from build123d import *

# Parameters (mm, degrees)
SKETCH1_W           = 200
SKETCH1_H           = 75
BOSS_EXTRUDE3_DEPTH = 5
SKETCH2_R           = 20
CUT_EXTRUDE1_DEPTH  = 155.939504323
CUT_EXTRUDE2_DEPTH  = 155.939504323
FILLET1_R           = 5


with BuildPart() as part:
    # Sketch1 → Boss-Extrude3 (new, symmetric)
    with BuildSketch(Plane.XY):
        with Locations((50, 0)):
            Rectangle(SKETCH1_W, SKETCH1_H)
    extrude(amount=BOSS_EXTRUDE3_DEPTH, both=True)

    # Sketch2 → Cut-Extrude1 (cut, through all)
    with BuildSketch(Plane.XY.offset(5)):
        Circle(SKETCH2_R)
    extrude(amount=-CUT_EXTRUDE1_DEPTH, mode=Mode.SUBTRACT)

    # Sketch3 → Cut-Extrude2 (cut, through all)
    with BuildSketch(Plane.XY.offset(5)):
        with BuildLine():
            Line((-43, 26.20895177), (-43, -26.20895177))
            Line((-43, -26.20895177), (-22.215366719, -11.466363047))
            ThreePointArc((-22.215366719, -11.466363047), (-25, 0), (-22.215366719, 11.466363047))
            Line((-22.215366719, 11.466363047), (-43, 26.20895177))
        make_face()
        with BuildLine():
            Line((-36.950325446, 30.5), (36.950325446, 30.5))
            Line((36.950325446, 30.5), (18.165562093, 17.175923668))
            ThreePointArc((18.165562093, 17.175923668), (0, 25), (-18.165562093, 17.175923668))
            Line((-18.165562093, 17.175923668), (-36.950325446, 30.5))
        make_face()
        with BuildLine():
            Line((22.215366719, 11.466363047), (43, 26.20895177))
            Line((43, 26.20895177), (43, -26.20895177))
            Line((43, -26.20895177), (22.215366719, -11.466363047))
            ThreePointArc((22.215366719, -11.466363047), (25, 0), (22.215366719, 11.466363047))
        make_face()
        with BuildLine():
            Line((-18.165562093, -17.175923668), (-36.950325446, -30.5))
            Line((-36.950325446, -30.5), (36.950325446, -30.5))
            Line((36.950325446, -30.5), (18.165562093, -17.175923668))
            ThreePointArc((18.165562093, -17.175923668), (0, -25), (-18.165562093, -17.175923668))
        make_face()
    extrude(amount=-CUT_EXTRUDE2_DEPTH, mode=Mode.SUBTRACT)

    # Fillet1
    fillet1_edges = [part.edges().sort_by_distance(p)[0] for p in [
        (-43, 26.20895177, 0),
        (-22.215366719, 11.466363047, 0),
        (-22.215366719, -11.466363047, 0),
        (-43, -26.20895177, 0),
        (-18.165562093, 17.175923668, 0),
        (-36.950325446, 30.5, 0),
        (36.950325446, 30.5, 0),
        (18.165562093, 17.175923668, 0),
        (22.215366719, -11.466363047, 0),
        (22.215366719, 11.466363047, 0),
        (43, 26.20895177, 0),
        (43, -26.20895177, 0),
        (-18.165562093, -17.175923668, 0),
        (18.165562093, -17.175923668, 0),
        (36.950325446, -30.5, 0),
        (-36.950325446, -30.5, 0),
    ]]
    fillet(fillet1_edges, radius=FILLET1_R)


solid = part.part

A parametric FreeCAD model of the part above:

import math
import FreeCAD as App
import Part
import Sketcher
from FreeCAD import Vector


def edges_at(feature, points):
    """Names of the edges that pass closest to the given points."""
    edges = feature.Shape.Edges
    near = lambda p: min(range(len(edges)), key=lambda i: edges[i].distToShape(Part.Vertex(*p))[0])
    return sorted({f"Edge{near(p) + 1}" for p in points})


def add_polygon(sketch, points):
    """Adds a closed chain of lines whose ends are joined by coincident constraints."""
    first, n = sketch.GeometryCount, len(points)
    for a, b in zip(points, points[1:] + points[:1]):
        sketch.addGeometry(Part.LineSegment(App.Vector(*a, 0), App.Vector(*b, 0)), False)
    for i in range(n):
        sketch.addConstraint(Sketcher.Constraint("Coincident", first + i, 2, first + (i + 1) % n, 1))

doc = App.newDocument("Part")
params = doc.addObject("Spreadsheet::Sheet", "Params")
for row, (alias, value) in enumerate([
    ("sketch1_width", "200 mm"),
    ("sketch1_height", "75 mm"),
    ("pad1_length", "10 mm"),
    ("sketch2_diameter", "40 mm"),
    ("sketch3_radius", "25 mm"),
    ("fillet_radius", "5 mm"),
], start=1):
    params.set(f"A{row}", alias)
    params.set(f"B{row}", "=" + value)
    params.setAlias(f"B{row}", alias)

body = doc.addObject("PartDesign::Body", "Body")

# Sketch on XY plane
sketch1 = doc.addObject("Sketcher::SketchObject", "Sketch")
body.addObject(sketch1)
sketch1.AttachmentSupport = (doc.XY_Plane, [""])
sketch1.MapMode = "FlatFace"
add_polygon(sketch1, [(-50, 38), (-50, -38), (150, -38), (150, 38)])  # lines 0-3
sketch1.addConstraint([
    Sketcher.Constraint("Vertical", 0),
    Sketcher.Constraint("Horizontal", 1),
    Sketcher.Constraint("Vertical", 2),
    Sketcher.Constraint("Horizontal", 3),
    Sketcher.Constraint("DistanceX", 1, 1, 1, 2, 200.0),
    Sketcher.Constraint("DistanceY", 0, 2, 0, 1, 75.0),
    Sketcher.Constraint("DistanceX", 0, 2, -1, 1, 50.0),
    Sketcher.Constraint("DistanceY", 0, 2, -1, 1, 37.5),
])
sketch1.setExpression("Constraints[8]", "Params.sketch1_width")
sketch1.setExpression("Constraints[9]", "Params.sketch1_height")
pad1 = doc.addObject("PartDesign::Pad", "Pad")
body.addObject(pad1)
pad1.Profile = sketch1
pad1.setExpression("Length", "Params.pad1_length")
pad1.Midplane = True

# Sketch on XY plane
sketch2 = doc.addObject("Sketcher::SketchObject", "Sketch001")
body.addObject(sketch2)
sketch2.AttachmentSupport = (doc.XY_Plane, [""])
sketch2.MapMode = "FlatFace"
sketch2.AttachmentOffset = App.Placement(Vector(0, 0, 5), App.Rotation())
sketch2.addGeometry(Part.Circle(Vector(0, 0, 0), Vector(0, 0, 1), 20), False)
sketch2.addConstraint([
    Sketcher.Constraint("Coincident", 0, 3, -1, 1),
    Sketcher.Constraint("Diameter", 0, 40.0),
])
sketch2.setExpression("Constraints[1]", "Params.sketch2_diameter")
pocket1 = doc.addObject("PartDesign::Pocket", "Pocket")
body.addObject(pocket1)
pocket1.Profile = sketch2
pocket1.Type = "ThroughAll"

# Sketch on XY plane
sketch3 = doc.addObject("Sketcher::SketchObject", "Sketch002")
body.addObject(sketch3)
sketch3.AttachmentSupport = (doc.XY_Plane, [""])
sketch3.MapMode = "FlatFace"
sketch3.AttachmentOffset = App.Placement(Vector(0, 0, 5), App.Rotation())
sketch3.addGeometry([
    Part.LineSegment(Vector(-43, 26, 0), Vector(-43, -26, 0)),  # 0
    Part.LineSegment(Vector(-43, -26, 0), Vector(-22, -11, 0)),  # 1
    Part.ArcOfCircle(Part.Circle(Vector(0, 0, 0), Vector(0, 0, 1), 25), math.radians(153), math.radians(207)),  # 2
    Part.LineSegment(Vector(-22, 11, 0), Vector(-43, 26, 0)),  # 3
    Part.LineSegment(Vector(37, 30, 0), Vector(-37, 30, 0)),  # 4
    Part.LineSegment(Vector(-37, 30, 0), Vector(-18, 17, 0)),  # 5
    Part.ArcOfCircle(Part.Circle(Vector(0, 0, 0), Vector(0, 0, 1), 25), math.radians(43), math.radians(137)),  # 6
    Part.LineSegment(Vector(18, 17, 0), Vector(37, 30, 0)),  # 7
    Part.LineSegment(Vector(43, 26, 0), Vector(22, 11, 0)),  # 8
    Part.ArcOfCircle(Part.Circle(Vector(0, 0, 0), Vector(0, 0, 1), 25), math.radians(-27), math.radians(27)),  # 9
    Part.LineSegment(Vector(22, -11, 0), Vector(43, -26, 0)),  # 10
    Part.LineSegment(Vector(43, -26, 0), Vector(43, 26, 0)),  # 11
    Part.LineSegment(Vector(-18, -17, 0), Vector(-37, -30, 0)),  # 12
    Part.LineSegment(Vector(-37, -30, 0), Vector(37, -30, 0)),  # 13
    Part.LineSegment(Vector(37, -30, 0), Vector(18, -17, 0)),  # 14
    Part.ArcOfCircle(Part.Circle(Vector(0, 0, 0), Vector(0, 0, 1), 25), math.radians(-137), math.radians(-43)),  # 15
], False)
sketch3.addConstraint([
    Sketcher.Constraint("Coincident", 0, 2, 1, 1),
    Sketcher.Constraint("Coincident", 1, 2, 2, 2),
    Sketcher.Constraint("Coincident", 2, 1, 3, 1),
    Sketcher.Constraint("Coincident", 3, 2, 0, 1),
    Sketcher.Constraint("Coincident", 4, 2, 5, 1),
    Sketcher.Constraint("Coincident", 5, 2, 6, 2),
    Sketcher.Constraint("Coincident", 6, 1, 7, 1),
    Sketcher.Constraint("Coincident", 7, 2, 4, 1),
    Sketcher.Constraint("Coincident", 8, 2, 9, 2),
    Sketcher.Constraint("Coincident", 9, 1, 10, 1),
    Sketcher.Constraint("Coincident", 10, 2, 11, 1),
    Sketcher.Constraint("Coincident", 11, 2, 8, 1),
    Sketcher.Constraint("Coincident", 12, 2, 13, 1),
    Sketcher.Constraint("Coincident", 13, 2, 14, 1),
    Sketcher.Constraint("Coincident", 14, 2, 15, 2),
    Sketcher.Constraint("Coincident", 15, 1, 12, 1),
    Sketcher.Constraint("Vertical", 0),
    Sketcher.Constraint("Horizontal", 4),
    Sketcher.Constraint("Vertical", 11),
    Sketcher.Constraint("Horizontal", 13),
    Sketcher.Constraint("Coincident", 2, 3, -1, 1),
    Sketcher.Constraint("Coincident", 6, 3, -1, 1),
    Sketcher.Constraint("Coincident", 9, 3, -1, 1),
    Sketcher.Constraint("Coincident", 15, 3, -1, 1),
    Sketcher.Constraint("Equal", 2, 6),
    Sketcher.Constraint("Equal", 6, 9),
    Sketcher.Constraint("Equal", 9, 15),
    Sketcher.Constraint("Symmetric", 3, 2, 10, 2, -1, 1),
    Sketcher.Constraint("Symmetric", 7, 2, 12, 2, -1, 1),
    Sketcher.Constraint("Parallel", 3, 5),
    Sketcher.Constraint("Parallel", 1, 7),
    Sketcher.Constraint("Parallel", 7, 8),
    Sketcher.Constraint("Parallel", 5, 10),
    Sketcher.Constraint("Parallel", 8, 12),
    Sketcher.Constraint("Parallel", 10, 14),
    Sketcher.Constraint("Horizontal", 5, 2, 6, 1),
    Sketcher.Constraint("Horizontal", 2, 1, 8, 2),
    Sketcher.Constraint("Horizontal", 1, 2, 9, 1),
    Sketcher.Constraint("Horizontal", 0, 2, 10, 2),
    Sketcher.Constraint("Horizontal", 14, 2, 15, 1),
    Sketcher.Constraint("Radius", 2, 25.0),
    Sketcher.Constraint("DistanceX", 0, 2, -1, 1, 43.0),
    Sketcher.Constraint("DistanceY", -1, 1, 4, 2, 30.5),
    Sketcher.Constraint("DistanceX", 4, 2, 4, 1, 73.900651),
    Sketcher.Constraint("Distance", 5, 23.030379),
    Sketcher.Constraint("DistanceY", 0, 2, 0, 1, 52.417904),
])
sketch3.setExpression("Constraints[40]", "Params.sketch3_radius")
pocket2 = doc.addObject("PartDesign::Pocket", "Pocket001")
body.addObject(pocket2)
pocket2.Profile = sketch3
pocket2.Type = "ThroughAll"
doc.recompute()

fillet = doc.addObject("PartDesign::Fillet", "Fillet")
body.addObject(fillet)
fillet.Base = (pocket2, edges_at(pocket2, [
    (-43, 26.209, 0),
    (-22.215, 11.466, 0),
    (-22.215, -11.466, 0),
    (-43, -26.209, 0),
    (-18.166, 17.176, 0),
    (-36.95, 30.5, 0),
    (36.95, 30.5, 0),
    (18.166, 17.176, 0),
    (22.215, -11.466, 0),
    (22.215, 11.466, 0),
    (43, 26.209, 0),
    (43, -26.209, 0),
    (-18.166, -17.176, 0),
    (18.166, -17.176, 0),
    (36.95, -30.5, 0),
    (-36.95, -30.5, 0),
]))
fillet.setExpression("Radius", "Params.fillet_radius")

doc.recompute()
